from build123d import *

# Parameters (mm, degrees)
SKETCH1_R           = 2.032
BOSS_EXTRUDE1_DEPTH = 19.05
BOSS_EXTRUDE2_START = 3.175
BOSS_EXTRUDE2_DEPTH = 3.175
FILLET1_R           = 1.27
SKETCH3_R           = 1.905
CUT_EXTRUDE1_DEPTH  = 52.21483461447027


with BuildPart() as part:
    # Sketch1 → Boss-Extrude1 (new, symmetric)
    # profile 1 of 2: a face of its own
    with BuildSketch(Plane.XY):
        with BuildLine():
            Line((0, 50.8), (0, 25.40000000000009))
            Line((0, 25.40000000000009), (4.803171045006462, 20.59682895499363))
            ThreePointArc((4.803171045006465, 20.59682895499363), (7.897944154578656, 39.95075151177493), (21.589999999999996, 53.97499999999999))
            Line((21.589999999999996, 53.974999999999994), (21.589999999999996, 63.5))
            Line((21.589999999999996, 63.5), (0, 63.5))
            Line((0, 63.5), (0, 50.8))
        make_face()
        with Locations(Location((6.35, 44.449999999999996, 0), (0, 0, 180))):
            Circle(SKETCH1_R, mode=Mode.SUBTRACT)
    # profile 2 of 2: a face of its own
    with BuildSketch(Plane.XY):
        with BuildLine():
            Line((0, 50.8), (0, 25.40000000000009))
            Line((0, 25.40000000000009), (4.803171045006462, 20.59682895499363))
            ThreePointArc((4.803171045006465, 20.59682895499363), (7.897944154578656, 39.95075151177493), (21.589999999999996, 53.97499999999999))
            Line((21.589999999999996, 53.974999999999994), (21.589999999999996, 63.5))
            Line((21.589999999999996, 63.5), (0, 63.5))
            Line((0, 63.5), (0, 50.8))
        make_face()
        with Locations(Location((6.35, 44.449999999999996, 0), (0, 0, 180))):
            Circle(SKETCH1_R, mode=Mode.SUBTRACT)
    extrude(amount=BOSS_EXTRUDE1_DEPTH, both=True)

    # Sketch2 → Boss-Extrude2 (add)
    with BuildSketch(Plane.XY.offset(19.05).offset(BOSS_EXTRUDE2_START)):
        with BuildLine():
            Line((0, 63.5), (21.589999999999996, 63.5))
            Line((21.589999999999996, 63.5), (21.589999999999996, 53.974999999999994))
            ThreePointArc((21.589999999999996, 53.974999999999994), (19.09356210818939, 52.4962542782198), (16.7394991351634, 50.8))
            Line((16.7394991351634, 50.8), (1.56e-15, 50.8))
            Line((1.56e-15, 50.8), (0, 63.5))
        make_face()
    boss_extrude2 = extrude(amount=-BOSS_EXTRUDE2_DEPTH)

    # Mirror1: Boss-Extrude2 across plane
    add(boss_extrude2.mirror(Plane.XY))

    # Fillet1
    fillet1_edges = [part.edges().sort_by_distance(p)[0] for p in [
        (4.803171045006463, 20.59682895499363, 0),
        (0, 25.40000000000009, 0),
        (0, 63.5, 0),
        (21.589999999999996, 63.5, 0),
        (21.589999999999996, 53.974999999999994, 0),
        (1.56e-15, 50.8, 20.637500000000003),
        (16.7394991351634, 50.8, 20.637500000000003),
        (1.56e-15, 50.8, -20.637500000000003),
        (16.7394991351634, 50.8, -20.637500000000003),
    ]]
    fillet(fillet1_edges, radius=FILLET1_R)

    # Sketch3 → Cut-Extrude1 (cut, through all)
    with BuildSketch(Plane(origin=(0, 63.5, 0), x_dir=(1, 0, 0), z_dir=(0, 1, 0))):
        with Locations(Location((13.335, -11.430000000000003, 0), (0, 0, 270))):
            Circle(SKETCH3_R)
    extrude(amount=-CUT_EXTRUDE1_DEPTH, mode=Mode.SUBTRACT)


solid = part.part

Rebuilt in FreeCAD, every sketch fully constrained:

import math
import FreeCAD as App
import Part
import Sketcher
Q = App.Units.Quantity


def edges_at(feature, points):
    """Names of the edges that pass closest to the given points."""
    edges = feature.Shape.Edges
    near = lambda p: min(range(len(edges)), key=lambda i: edges[i].distToShape(Part.Vertex(*p))[0])
    return sorted({f"Edge{near(p) + 1}" for p in points})

doc = App.newDocument("Part")
params = doc.addObject("Spreadsheet::Sheet", "Params")
for row, (alias, value) in enumerate([
    ("sketch1_diameter", "0.16 in"),
    ("sketch1_height", "1.5 in"),
    ("sketch1_radius", "1.275 in"),
    ("sketch1_width", "0.85 in"),
    ("pad1_length", "1.5 in"),
    ("sketch2_height", "0.5 in"),
    ("sketch2_radius", "1.275 in"),
    ("sketch2_width", "0.85 in"),
    ("sketch2_width2", "0.6 in"),
    ("pad2_length", "0.125 in"),
    ("fillet_radius", "0.05 in"),
    ("sketch3_diameter", "0.15 in"),
], start=1):
    params.set(f"A{row}", alias)
    params.set(f"B{row}", "=" + value)
    params.setAlias(f"B{row}", alias)

body = doc.addObject("PartDesign::Body", "Body")

# Sketch on XY plane
sketch1 = doc.addObject("Sketcher::SketchObject", "Sketch")
body.addObject(sketch1)
sketch1.AttachmentSupport = (doc.XY_Plane, [""])
sketch1.MapMode = "FlatFace"
sketch1.addGeometry([
    Part.LineSegment(App.Vector(0, 25.4, 0), App.Vector(4.8, 20.6, 0)),  # 0
    Part.ArcOfCircle(Part.Circle(App.Vector(36.8, 25.4, 0), App.Vector(0, 0, 1), 32.4), math.radians(118), math.radians(189)),  # 1
    Part.LineSegment(App.Vector(21.6, 54, 0), App.Vector(21.6, 63.5, 0)),  # 2
    Part.LineSegment(App.Vector(21.6, 63.5, 0), App.Vector(0, 63.5, 0)),  # 3
    Part.LineSegment(App.Vector(0, 63.5, 0), App.Vector(0, 25.4, 0)),  # 4
    Part.Circle(App.Vector(6.3, 44.5, 0), App.Vector(0, 0, 1), 2),  # 5
], False)
sketch1.addConstraint([
    Sketcher.Constraint("Coincident", 0, 2, 1, 2),
    Sketcher.Constraint("Coincident", 1, 1, 2, 1),
    Sketcher.Constraint("Coincident", 2, 2, 3, 1),
    Sketcher.Constraint("Coincident", 3, 2, 4, 1),
    Sketcher.Constraint("Coincident", 4, 2, 0, 1),
    Sketcher.Constraint("Vertical", 2),
    Sketcher.Constraint("Horizontal", 3),
    Sketcher.Constraint("Vertical", 4),
    Sketcher.Constraint("PointOnObject", 3, 2, -2),
    Sketcher.Constraint("Horizontal", 1, 3, 4, 2),
    Sketcher.Constraint("Diameter", 5, Q("0.16 in")),
    Sketcher.Constraint("DistanceY", 4, 2, 4, 1, Q("1.5 in")),
    Sketcher.Constraint("DistanceY", -1, 1, 1, 3, Q("1 in")),
    Sketcher.Constraint("Angle", 0, Q("-45 deg")),
    Sketcher.Constraint("Radius", 1, Q("1.275 in")),
    Sketcher.Constraint("DistanceX", 3, 2, 3, 1, Q("0.85 in")),
    Sketcher.Constraint("DistanceX", 5, 3, 1, 3, Q("1.2 in")),
    Sketcher.Constraint("DistanceX", 5, 3, 1, 1, Q("0.6 in")),
    Sketcher.Constraint("DistanceY", -1, 1, 5, 3, Q("1.75 in")),
])
sketch1.setExpression("Constraints[10]", "Params.sketch1_diameter")
sketch1.setExpression("Constraints[11]", "Params.sketch1_height")
sketch1.setExpression("Constraints[14]", "Params.sketch1_radius")
sketch1.setExpression("Constraints[15]", "Params.sketch1_width")
pad1 = doc.addObject("PartDesign::Pad", "Pad")
body.addObject(pad1)
pad1.Profile = sketch1
pad1.setExpression("Length", "Params.pad1_length")
pad1.Midplane = True

# Sketch on XY plane
sketch2 = doc.addObject("Sketcher::SketchObject", "Sketch001")
body.addObject(sketch2)
sketch2.AttachmentSupport = (doc.XY_Plane, [""])
sketch2.MapMode = "FlatFace"
sketch2.AttachmentOffset = App.Placement(App.Vector(0, 0, 0.875 * 25.4), App.Rotation())
sketch2.addGeometry([
    Part.LineSegment(App.Vector(22, 64, 0), App.Vector(0, 64, 0)),  # 0
    Part.LineSegment(App.Vector(0, 64, 0), App.Vector(0, 51, 0)),  # 1
    Part.LineSegment(App.Vector(0, 51, 0), App.Vector(17, 51, 0)),  # 2
    Part.ArcOfCircle(Part.Circle(App.Vector(37, 25, 0), App.Vector(0, 0, 1), 32), math.radians(118.07), math.radians(128.34)),  # 3
    Part.LineSegment(App.Vector(22, 54, 0), App.Vector(22, 64, 0)),  # 4
], False)
sketch2.addConstraint([
    Sketcher.Constraint("Coincident", 0, 2, 1, 1),
    Sketcher.Constraint("Coincident", 1, 2, 2, 1),
    Sketcher.Constraint("Coincident", 2, 2, 3, 2),
    Sketcher.Constraint("Coincident", 3, 1, 4, 1),
    Sketcher.Constraint("Coincident", 4, 2, 0, 1),
    Sketcher.Constraint("Horizontal", 0),
    Sketcher.Constraint("Vertical", 1),
    Sketcher.Constraint("Horizontal", 2),
    Sketcher.Constraint("Vertical", 4),
    Sketcher.Constraint("PointOnObject", 0, 2, -2),
    Sketcher.Constraint("DistanceY", 1, 2, 1, 1, Q("0.5 in")),
    Sketcher.Constraint("DistanceY", -1, 1, 3, 3, Q("1 in")),
    Sketcher.Constraint("DistanceY", -1, 1, 1, 2, Q("2 in")),
    Sketcher.Constraint("Radius", 3, Q("1.275 in")),
    Sketcher.Constraint("DistanceX", 0, 2, 0, 1, Q("0.85 in")),
    Sketcher.Constraint("DistanceX", 3, 1, 3, 3, Q("0.6 in")),
])
sketch2.setExpression("Constraints[10]", "Params.sketch2_height")
sketch2.setExpression("Constraints[13]", "Params.sketch2_radius")
sketch2.setExpression("Constraints[14]", "Params.sketch2_width")
sketch2.setExpression("Constraints[15]", "Params.sketch2_width2")
pad2 = doc.addObject("PartDesign::Pad", "Pad001")
body.addObject(pad2)
pad2.Profile = sketch2
pad2.setExpression("Length", "Params.pad2_length")
pad2.Reversed = True
doc.recompute()

mirrored = doc.addObject("PartDesign::Mirrored", "Mirrored")
body.addObject(mirrored)
mirrored.Originals = [pad2]
mirrored.MirrorPlane = (doc.XY_Plane, [""])
body.Tip = mirrored
doc.recompute()

fillet = doc.addObject("PartDesign::Fillet", "Fillet")
body.addObject(fillet)
fillet.Base = (mirrored, edges_at(mirrored, [
    (4.803, 20.597, 0),
    (0, 25.4, 0),
    (0, 63.5, 0),
    (21.59, 63.5, 0),
    (21.59, 53.975, 0),
    (0, 50.8, 20.637),
    (16.739, 50.8, 20.637),
    (0, 50.8, -20.637),
    (16.739, 50.8, -20.637),
]))
fillet.setExpression("Radius", "Params.fillet_radius")

# Sketch on XZ plane
sketch3 = doc.addObject("Sketcher::SketchObject", "Sketch002")
body.addObject(sketch3)
sketch3.AttachmentSupport = (doc.XZ_Plane, [""])
sketch3.MapMode = "FlatFace"
sketch3.AttachmentOffset = App.Placement(App.Vector(0, 0, -2.5 * 25.4), App.Rotation())
sketch3.addGeometry(Part.Circle(App.Vector(13.3, 11.4, 0), App.Vector(0, 0, 1), 1.9), False)
sketch3.addConstraint([
    Sketcher.Constraint("Diameter", 0, Q("0.15 in")),
    Sketcher.Constraint("DistanceY", -1, 1, 0, 3, Q("0.45 in")),
    Sketcher.Constraint("DistanceX", -1, 1, 0, 3, Q("0.525 in")),
])
sketch3.setExpression("Constraints[0]", "Params.sketch3_diameter")
pocket1 = doc.addObject("PartDesign::Pocket", "Pocket")
body.addObject(pocket1)
pocket1.Profile = sketch3
pocket1.Type = "ThroughAll"
pocket1.Reversed = True

doc.recompute()
